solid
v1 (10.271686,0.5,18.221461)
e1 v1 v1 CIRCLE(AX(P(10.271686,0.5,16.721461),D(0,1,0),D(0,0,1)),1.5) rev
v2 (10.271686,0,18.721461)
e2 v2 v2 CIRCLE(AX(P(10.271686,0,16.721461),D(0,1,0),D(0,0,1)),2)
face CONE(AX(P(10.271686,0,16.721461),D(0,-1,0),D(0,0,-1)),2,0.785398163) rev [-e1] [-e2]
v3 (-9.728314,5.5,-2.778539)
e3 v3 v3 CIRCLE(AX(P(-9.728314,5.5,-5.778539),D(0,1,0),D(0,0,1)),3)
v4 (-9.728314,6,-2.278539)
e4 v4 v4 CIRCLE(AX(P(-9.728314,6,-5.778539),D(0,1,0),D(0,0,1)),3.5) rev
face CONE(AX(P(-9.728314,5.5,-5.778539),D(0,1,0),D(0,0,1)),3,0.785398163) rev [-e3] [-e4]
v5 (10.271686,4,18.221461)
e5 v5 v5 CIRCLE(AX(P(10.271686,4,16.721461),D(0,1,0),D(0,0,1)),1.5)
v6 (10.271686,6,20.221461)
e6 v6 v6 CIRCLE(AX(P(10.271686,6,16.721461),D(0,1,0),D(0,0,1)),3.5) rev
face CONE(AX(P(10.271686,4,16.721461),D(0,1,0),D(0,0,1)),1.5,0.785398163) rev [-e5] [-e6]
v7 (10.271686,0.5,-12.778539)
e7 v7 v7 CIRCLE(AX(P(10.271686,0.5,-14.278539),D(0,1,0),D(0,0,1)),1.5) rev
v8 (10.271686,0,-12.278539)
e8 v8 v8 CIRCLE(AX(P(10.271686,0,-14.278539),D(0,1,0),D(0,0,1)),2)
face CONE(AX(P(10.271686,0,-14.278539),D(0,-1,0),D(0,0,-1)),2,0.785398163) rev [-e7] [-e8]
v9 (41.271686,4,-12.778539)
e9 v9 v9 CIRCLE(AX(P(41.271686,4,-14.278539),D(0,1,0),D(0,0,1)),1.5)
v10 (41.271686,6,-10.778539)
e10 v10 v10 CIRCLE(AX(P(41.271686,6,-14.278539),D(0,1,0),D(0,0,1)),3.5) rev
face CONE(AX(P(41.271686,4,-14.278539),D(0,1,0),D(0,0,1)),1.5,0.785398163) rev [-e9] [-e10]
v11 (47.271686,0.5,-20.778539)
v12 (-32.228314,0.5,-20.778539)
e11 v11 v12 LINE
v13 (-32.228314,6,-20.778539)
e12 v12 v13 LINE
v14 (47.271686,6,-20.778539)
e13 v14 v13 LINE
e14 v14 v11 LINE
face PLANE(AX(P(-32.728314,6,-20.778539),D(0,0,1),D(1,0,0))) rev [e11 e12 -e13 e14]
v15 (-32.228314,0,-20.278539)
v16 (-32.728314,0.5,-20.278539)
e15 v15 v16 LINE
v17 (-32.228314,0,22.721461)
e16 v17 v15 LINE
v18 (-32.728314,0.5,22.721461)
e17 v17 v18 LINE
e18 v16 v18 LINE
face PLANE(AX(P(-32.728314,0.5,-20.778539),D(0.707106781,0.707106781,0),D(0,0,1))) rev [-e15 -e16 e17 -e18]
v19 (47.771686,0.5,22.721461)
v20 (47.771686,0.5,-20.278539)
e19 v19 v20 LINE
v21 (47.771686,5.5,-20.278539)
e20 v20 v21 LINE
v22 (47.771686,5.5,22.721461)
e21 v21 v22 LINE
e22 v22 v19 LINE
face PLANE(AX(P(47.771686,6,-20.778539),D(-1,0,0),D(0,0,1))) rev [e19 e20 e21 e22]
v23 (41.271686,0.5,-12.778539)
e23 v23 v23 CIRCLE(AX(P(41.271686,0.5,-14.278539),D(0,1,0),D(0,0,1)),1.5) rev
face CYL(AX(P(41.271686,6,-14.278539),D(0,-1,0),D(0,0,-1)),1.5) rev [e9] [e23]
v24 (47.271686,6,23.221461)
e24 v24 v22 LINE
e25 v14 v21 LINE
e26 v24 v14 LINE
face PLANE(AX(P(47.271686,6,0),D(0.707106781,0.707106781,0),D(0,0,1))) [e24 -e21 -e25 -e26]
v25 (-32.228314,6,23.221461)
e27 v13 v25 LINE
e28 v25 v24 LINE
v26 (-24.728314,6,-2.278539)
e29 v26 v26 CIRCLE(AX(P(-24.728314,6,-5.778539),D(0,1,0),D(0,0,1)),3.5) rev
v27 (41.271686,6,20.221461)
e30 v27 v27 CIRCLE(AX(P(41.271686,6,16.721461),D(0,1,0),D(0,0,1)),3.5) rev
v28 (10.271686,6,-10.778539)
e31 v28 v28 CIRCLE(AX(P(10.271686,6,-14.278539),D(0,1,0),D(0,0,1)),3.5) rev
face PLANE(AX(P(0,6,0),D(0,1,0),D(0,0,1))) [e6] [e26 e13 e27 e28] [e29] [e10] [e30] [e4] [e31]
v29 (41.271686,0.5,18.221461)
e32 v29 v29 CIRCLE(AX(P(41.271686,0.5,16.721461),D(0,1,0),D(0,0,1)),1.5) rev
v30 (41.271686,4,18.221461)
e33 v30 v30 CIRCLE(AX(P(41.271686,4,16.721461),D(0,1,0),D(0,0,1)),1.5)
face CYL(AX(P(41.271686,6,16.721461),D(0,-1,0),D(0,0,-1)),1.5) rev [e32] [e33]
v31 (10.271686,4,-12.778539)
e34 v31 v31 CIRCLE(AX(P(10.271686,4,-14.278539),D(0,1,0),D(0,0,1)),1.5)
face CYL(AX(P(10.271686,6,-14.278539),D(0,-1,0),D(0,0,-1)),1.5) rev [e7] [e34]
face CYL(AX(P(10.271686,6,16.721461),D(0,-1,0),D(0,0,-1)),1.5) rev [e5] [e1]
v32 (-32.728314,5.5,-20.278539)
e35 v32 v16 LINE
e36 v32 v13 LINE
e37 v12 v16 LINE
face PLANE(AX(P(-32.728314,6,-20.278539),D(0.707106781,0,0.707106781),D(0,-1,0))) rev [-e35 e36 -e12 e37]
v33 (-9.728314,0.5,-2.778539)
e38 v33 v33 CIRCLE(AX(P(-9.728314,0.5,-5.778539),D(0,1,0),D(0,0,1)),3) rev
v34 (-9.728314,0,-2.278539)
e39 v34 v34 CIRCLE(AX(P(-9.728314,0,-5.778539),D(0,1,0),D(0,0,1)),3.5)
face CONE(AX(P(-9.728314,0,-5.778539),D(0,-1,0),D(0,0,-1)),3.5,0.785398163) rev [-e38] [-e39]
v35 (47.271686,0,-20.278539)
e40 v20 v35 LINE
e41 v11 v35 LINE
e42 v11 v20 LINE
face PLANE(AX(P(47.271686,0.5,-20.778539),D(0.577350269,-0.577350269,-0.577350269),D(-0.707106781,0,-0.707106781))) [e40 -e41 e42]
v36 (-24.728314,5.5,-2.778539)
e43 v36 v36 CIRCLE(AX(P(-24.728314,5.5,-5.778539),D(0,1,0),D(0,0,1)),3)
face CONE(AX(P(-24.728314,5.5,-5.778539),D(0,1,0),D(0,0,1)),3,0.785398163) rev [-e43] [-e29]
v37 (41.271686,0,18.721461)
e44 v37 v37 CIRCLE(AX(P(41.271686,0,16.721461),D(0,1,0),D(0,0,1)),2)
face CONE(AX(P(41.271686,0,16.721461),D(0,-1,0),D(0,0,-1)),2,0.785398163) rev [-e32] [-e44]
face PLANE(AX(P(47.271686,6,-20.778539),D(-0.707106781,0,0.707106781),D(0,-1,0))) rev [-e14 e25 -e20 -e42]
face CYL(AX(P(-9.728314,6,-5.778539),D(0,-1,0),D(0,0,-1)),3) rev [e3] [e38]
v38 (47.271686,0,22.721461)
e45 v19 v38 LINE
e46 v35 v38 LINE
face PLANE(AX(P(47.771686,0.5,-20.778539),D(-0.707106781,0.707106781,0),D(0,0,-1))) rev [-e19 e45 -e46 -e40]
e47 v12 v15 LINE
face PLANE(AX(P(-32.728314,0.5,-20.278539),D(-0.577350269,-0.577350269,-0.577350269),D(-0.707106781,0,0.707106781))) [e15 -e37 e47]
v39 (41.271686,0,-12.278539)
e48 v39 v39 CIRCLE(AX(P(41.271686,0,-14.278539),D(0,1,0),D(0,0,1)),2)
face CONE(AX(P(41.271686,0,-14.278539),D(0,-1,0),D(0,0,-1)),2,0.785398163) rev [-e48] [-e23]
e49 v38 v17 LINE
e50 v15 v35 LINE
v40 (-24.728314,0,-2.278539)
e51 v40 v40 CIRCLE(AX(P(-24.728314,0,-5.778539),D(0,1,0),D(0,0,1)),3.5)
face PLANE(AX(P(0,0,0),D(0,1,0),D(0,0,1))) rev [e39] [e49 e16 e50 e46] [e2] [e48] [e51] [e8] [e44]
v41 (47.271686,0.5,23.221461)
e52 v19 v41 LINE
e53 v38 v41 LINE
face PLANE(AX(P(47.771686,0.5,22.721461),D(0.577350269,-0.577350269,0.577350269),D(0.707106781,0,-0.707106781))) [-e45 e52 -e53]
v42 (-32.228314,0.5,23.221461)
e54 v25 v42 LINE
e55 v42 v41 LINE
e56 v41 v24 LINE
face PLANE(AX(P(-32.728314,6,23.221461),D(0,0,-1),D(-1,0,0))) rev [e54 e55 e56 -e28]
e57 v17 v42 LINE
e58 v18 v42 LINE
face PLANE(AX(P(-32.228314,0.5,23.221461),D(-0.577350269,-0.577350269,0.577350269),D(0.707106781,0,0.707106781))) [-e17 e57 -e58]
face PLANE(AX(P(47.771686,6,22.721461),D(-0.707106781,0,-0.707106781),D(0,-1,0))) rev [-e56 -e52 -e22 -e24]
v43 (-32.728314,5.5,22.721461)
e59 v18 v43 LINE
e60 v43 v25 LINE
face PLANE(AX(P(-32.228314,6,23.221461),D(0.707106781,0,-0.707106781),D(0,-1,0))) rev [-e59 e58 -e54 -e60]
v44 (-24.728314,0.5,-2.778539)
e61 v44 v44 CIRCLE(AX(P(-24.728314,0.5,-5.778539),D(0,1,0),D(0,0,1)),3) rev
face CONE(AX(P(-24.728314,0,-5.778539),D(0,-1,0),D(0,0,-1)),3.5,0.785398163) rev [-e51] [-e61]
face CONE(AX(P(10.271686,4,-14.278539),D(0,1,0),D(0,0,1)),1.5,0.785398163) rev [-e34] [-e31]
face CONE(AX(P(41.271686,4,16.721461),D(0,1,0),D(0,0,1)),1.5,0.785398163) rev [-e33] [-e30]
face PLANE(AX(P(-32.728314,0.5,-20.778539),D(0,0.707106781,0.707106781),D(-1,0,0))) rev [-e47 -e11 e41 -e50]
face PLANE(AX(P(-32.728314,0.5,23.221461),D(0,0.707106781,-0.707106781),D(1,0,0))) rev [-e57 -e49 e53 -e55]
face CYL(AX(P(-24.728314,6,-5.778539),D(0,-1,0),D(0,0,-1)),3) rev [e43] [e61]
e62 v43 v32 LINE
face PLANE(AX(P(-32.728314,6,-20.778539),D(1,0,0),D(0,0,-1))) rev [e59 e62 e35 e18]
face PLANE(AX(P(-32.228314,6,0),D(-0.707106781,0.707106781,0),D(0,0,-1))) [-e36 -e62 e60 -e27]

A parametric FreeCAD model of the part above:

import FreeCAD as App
import Part
import Sketcher

V = App.Vector


def edges_at(feature, points):
    """Names of the edges that pass closest to the given points."""
    edges = feature.Shape.Edges
    near = lambda p: min(range(len(edges)), key=lambda i: edges[i].distToShape(Part.Vertex(*p))[0])
    return sorted({f"Edge{near(p) + 1}" for p in points})

doc = App.newDocument("Part")
params = doc.addObject("Spreadsheet::Sheet", "Params")
for row, (alias, value) in enumerate([
    ("sketch1_diameter", "3 mm"),
    ("sketch1_diameter2", "6 mm"),
    ("sketch1_height", "44 mm"),
    ("sketch1_width", "80.5 mm"),
    ("pad1_length", "6 mm"),
    ("chamfer_size", "0.5 mm"),
    ("chamfer2_size", "2 mm"),
], start=1):
    params.set(f"A{row}", alias)
    params.set(f"B{row}", "=" + value)
    params.setAlias(f"B{row}", alias)

body = doc.addObject("PartDesign::Body", "Body")

sketch1 = body.newObject("Sketcher::SketchObject", "Sketch")
sketch1.AttachmentSupport = (doc.getObject("XZ_Plane"), [""])
sketch1.MapMode = "FlatFace"
sketch1.addGeometry(Part.LineSegment(V(-32.7, -20.8, 0), V(-32.7, 23.2, 0)), False)
sketch1.addGeometry(Part.LineSegment(V(-32.7, 23.2, 0), V(47.8, 23.2, 0)), False)
sketch1.addGeometry(Part.LineSegment(V(47.8, 23.2, 0), V(47.8, -20.8, 0)), False)
sketch1.addGeometry(Part.LineSegment(V(47.8, -20.8, 0), V(-32.7, -20.8, 0)), False)
sketch1.addGeometry(Part.Circle(V(10.3, 16.7, 0), V(0, 0, 1), 1.5), False)
sketch1.addGeometry(Part.Circle(V(41.3, 16.7, 0), V(0, 0, 1), 1.5), False)
sketch1.addGeometry(Part.Circle(V(-24.7, -5.8, 0), V(0, 0, 1), 3), False)
sketch1.addGeometry(Part.Circle(V(-9.7, -5.8, 0), V(0, 0, 1), 3), False)
sketch1.addGeometry(Part.Circle(V(10.3, -14.3, 0), V(0, 0, 1), 1.5), False)
sketch1.addGeometry(Part.Circle(V(41.3, -14.3, 0), V(0, 0, 1), 1.5), False)
sketch1.addConstraint(Sketcher.Constraint("Coincident", 0, 2, 1, 1))
sketch1.addConstraint(Sketcher.Constraint("Coincident", 1, 2, 2, 1))
sketch1.addConstraint(Sketcher.Constraint("Coincident", 2, 2, 3, 1))
sketch1.addConstraint(Sketcher.Constraint("Coincident", 3, 2, 0, 1))
sketch1.addConstraint(Sketcher.Constraint("Vertical", 0))
sketch1.addConstraint(Sketcher.Constraint("Horizontal", 1))
sketch1.addConstraint(Sketcher.Constraint("Vertical", 2))
sketch1.addConstraint(Sketcher.Constraint("Horizontal", 3))
sketch1.addConstraint(Sketcher.Constraint("Equal", 4, 5))
sketch1.addConstraint(Sketcher.Constraint("Equal", 6, 7))
sketch1.addConstraint(Sketcher.Constraint("Equal", 5, 8))
sketch1.addConstraint(Sketcher.Constraint("Equal", 8, 9))
sketch1.addConstraint(Sketcher.Constraint("Horizontal", 4, 3, 5, 3))
sketch1.addConstraint(Sketcher.Constraint("Horizontal", 6, 3, 7, 3))
sketch1.addConstraint(Sketcher.Constraint("Horizontal", 8, 3, 9, 3))
sketch1.addConstraint(Sketcher.Constraint("Vertical", 4, 3, 8, 3))
sketch1.addConstraint(Sketcher.Constraint("Vertical", 5, 3, 9, 3))
sketch1.addConstraint(Sketcher.Constraint("Diameter", 4, 3.0))
sketch1.addConstraint(Sketcher.Constraint("Diameter", 6, 6.0))
sketch1.addConstraint(Sketcher.Constraint("DistanceY", 0, 1, 0, 2, 44.0))
sketch1.addConstraint(Sketcher.Constraint("DistanceX", 1, 1, 1, 2, 80.5))
sketch1.addConstraint(Sketcher.Constraint("DistanceX", 4, 3, 5, 3, 31.0))
sketch1.addConstraint(Sketcher.Constraint("DistanceX", 6, 3, 4, 3, 35.0))
sketch1.addConstraint(Sketcher.Constraint("DistanceX", 6, 3, 7, 3, 15.0))
sketch1.addConstraint(Sketcher.Constraint("DistanceY", 8, 3, 4, 3, 31.0))
sketch1.addConstraint(Sketcher.Constraint("DistanceX", 0, 2, 6, 3, 8.0))
sketch1.addConstraint(Sketcher.Constraint("DistanceY", 6, 3, 0, 2, 29.0))
sketch1.addConstraint(Sketcher.Constraint("DistanceY", 6, 3, 4, 3, 22.5))
sketch1.addConstraint(Sketcher.Constraint("DistanceY", -1, 1, 4, 3, 16.721461))
sketch1.addConstraint(Sketcher.Constraint("DistanceX", -1, 1, 4, 3, 10.271686))
sketch1.setExpression("Constraints[17]", "Params.sketch1_diameter")
sketch1.setExpression("Constraints[18]", "Params.sketch1_diameter2")
sketch1.setExpression("Constraints[19]", "Params.sketch1_height")
sketch1.setExpression("Constraints[20]", "Params.sketch1_width")
pad1 = body.newObject("PartDesign::Pad", "Pad")
pad1.Profile = sketch1
pad1.setExpression("Length", "Params.pad1_length")
pad1.Reversed = True
doc.recompute()

chamfer = body.newObject("PartDesign::Chamfer", "Chamfer")
chamfer.Base = (pad1, edges_at(pad1, [
    (47.772, 6, 1.221),
    (10.272, 0, -15.779),
    (41.272, 0, -15.779),
    (10.272, 0, 15.221),
    (41.272, 0, 15.221),
    (-24.728, 0, -8.779),
    (-24.728, 6, -8.779),
    (-9.728, 0, -8.779),
    (-9.728, 6, -8.779),
    (-32.728, 6, 1.221),
    (7.522, 0, -20.779),
    (47.772, 0, 1.221),
    (7.522, 0, 23.221),
    (-32.728, 0, 1.221),
    (-32.728, 3, -20.779),
    (47.772, 3, -20.779),
    (47.772, 3, 23.221),
    (-32.728, 3, 23.221),
]))
chamfer.setExpression("Size", "Params.chamfer_size")
doc.recompute()

chamfer2 = body.newObject("PartDesign::Chamfer", "Chamfer001")
chamfer2.Base = (chamfer, edges_at(chamfer, [
    (10.272, 6, -15.779),
    (41.272, 6, -15.779),
    (10.272, 6, 15.221),
    (41.272, 6, 15.221),
]))
chamfer2.setExpression("Size", "Params.chamfer2_size")

doc.recompute()
